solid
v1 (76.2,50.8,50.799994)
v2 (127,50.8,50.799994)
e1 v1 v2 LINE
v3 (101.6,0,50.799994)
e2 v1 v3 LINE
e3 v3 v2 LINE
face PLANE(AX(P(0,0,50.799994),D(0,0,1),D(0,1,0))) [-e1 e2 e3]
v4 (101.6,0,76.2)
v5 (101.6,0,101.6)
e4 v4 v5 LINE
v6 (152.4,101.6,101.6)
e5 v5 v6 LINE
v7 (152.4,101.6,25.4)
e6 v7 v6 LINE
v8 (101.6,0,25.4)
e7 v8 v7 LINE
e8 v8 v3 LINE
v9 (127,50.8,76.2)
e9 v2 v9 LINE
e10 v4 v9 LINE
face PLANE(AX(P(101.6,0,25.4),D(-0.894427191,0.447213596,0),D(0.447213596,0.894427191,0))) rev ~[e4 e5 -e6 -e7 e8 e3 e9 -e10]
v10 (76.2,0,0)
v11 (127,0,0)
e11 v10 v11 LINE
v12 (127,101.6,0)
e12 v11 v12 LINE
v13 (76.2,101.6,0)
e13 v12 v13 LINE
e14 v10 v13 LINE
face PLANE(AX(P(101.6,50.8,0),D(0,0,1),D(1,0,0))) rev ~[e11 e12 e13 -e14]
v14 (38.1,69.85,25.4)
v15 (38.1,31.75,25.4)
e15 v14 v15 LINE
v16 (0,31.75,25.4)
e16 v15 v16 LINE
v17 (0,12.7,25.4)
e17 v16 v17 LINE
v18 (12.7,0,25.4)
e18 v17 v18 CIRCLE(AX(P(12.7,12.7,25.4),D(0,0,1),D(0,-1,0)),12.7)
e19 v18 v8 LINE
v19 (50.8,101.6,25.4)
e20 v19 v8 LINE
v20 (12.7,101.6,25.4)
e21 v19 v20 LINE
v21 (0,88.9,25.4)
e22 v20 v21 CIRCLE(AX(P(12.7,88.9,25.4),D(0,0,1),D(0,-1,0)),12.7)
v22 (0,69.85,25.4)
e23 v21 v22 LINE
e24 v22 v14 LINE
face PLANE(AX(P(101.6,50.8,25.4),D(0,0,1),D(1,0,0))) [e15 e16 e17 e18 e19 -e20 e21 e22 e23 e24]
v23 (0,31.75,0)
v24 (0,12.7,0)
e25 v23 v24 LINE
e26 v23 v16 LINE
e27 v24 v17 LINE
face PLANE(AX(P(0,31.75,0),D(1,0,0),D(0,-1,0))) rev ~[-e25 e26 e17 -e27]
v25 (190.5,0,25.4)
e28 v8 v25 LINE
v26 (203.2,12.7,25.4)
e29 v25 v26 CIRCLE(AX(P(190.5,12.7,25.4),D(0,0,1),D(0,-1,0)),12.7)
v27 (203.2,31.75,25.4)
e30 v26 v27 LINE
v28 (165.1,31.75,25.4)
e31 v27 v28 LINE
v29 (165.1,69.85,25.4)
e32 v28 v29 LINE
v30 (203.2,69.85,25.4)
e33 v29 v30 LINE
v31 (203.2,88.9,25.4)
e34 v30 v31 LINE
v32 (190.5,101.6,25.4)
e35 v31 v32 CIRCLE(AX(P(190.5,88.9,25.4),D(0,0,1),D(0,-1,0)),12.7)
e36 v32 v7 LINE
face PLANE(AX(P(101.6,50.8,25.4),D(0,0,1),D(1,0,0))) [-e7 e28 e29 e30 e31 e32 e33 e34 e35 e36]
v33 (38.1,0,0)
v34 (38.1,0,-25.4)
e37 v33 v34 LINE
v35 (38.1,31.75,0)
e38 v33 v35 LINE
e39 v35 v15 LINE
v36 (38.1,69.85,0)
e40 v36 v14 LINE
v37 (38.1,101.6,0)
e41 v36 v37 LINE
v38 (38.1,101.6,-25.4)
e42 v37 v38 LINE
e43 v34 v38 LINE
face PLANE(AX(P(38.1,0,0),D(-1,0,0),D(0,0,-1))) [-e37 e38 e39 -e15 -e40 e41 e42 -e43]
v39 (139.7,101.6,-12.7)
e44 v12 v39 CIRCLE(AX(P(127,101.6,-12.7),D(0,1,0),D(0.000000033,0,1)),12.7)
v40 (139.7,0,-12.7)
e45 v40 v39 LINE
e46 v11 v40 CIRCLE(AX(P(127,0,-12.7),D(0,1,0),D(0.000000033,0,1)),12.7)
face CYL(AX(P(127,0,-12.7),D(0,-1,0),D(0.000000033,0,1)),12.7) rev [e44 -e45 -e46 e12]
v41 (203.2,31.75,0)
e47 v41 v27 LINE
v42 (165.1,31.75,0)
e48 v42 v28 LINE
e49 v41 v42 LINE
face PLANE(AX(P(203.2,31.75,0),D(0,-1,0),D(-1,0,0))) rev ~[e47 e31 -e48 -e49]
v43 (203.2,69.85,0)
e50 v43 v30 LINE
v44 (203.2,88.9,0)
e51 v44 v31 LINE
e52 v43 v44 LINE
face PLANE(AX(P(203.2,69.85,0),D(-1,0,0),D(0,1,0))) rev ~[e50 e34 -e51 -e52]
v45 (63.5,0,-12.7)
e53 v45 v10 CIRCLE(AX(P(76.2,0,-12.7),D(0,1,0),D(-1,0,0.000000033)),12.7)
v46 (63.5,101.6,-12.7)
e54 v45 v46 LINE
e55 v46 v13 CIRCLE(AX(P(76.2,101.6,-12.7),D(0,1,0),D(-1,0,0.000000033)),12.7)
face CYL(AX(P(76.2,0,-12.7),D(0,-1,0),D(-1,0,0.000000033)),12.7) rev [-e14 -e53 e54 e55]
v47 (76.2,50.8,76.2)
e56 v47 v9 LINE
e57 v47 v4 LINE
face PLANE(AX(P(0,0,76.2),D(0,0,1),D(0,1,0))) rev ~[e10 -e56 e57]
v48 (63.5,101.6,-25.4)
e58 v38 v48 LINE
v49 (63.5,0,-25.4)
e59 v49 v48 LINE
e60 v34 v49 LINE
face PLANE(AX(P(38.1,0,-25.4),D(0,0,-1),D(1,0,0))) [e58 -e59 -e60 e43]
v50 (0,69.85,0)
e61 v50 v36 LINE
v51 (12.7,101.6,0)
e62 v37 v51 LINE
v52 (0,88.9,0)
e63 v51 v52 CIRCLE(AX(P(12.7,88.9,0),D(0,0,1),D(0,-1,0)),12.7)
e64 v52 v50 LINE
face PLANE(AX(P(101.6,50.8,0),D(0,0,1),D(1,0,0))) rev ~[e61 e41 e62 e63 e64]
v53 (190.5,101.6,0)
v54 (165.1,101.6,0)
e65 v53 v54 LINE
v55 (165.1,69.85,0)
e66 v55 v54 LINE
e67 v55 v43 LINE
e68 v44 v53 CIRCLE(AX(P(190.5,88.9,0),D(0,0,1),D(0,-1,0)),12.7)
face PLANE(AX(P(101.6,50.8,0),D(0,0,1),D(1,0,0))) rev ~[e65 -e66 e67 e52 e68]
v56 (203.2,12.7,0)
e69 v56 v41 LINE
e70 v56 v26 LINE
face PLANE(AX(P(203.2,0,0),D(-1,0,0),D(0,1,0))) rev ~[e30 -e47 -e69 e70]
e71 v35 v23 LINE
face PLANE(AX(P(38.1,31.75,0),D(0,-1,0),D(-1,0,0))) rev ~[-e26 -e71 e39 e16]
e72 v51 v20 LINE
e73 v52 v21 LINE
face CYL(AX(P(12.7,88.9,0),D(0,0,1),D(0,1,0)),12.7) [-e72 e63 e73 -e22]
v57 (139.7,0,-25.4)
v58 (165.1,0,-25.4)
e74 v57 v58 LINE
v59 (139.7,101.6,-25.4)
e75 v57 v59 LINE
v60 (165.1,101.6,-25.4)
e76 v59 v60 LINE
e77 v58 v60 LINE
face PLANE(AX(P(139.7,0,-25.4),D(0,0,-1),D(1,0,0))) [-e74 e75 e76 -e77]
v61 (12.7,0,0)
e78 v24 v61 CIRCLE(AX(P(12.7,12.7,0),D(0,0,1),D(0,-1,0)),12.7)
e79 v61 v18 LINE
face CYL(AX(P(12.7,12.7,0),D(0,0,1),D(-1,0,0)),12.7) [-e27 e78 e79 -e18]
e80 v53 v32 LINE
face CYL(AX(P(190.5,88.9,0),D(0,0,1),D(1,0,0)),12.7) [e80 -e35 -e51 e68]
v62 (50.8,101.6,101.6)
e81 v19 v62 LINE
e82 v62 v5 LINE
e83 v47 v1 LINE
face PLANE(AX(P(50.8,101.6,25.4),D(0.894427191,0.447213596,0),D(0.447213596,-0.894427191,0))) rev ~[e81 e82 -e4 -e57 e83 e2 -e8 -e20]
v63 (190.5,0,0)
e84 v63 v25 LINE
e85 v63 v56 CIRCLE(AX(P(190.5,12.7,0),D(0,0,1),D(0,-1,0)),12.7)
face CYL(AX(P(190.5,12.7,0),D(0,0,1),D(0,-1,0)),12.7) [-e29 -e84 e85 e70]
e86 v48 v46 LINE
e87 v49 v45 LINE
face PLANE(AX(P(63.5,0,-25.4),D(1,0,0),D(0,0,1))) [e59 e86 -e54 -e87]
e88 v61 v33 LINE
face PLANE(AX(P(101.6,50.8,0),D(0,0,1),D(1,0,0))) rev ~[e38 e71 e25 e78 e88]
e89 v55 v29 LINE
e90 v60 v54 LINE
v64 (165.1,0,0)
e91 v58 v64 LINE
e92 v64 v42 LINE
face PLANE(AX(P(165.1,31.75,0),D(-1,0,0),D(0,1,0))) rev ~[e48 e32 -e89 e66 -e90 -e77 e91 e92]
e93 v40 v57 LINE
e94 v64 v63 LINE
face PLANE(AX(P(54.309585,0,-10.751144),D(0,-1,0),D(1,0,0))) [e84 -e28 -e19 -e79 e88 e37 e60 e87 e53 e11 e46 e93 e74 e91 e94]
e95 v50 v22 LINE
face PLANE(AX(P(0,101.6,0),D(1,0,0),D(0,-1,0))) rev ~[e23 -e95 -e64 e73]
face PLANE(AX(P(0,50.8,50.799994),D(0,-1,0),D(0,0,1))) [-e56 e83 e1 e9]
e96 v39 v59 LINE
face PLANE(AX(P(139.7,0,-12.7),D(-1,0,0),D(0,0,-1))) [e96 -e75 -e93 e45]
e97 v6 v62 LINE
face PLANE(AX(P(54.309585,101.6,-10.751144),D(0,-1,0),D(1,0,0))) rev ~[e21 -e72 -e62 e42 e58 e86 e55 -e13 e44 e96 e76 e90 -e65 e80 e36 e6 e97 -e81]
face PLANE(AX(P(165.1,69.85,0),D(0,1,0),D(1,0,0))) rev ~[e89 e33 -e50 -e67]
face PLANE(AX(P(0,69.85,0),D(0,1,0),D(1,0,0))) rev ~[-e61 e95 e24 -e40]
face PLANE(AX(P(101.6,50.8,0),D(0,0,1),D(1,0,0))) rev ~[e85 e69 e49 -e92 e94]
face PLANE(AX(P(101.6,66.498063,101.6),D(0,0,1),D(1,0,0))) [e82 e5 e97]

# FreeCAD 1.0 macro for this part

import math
import FreeCAD as App
import Part
import Sketcher
Q = App.Units.Quantity


def edges_at(feature, points):
    """Names of the edges that pass closest to the given points."""
    edges = feature.Shape.Edges
    near = lambda p: min(range(len(edges)), key=lambda i: edges[i].distToShape(Part.Vertex(*p))[0])
    return sorted({f"Edge{near(p) + 1}" for p in points})

doc = App.newDocument("Part")
body = doc.addObject("PartDesign::Body", "Body")

sketch1 = body.newObject("Sketcher::SketchObject", "Sketch")
sketch1.AttachmentSupport = (doc.getObject("XY_Plane"), [""])
sketch1.MapMode = "FlatFace"
sketch1.addGeometry([
    Part.LineSegment(App.Vector(0, 32, 0), App.Vector(0, 0, 0)),
    Part.LineSegment(App.Vector(0, 0, 0), App.Vector(203, 0, 0)),
    Part.LineSegment(App.Vector(203, 0, 0), App.Vector(203, 32, 0)),
    Part.LineSegment(App.Vector(203, 32, 0), App.Vector(165, 32, 0)),
    Part.LineSegment(App.Vector(165, 32, 0), App.Vector(165, 70, 0)),
    Part.LineSegment(App.Vector(165, 70, 0), App.Vector(203, 70, 0)),
    Part.LineSegment(App.Vector(203, 70, 0), App.Vector(203, 102, 0)),
    Part.LineSegment(App.Vector(203, 102, 0), App.Vector(0, 102, 0)),
    Part.LineSegment(App.Vector(0, 102, 0), App.Vector(0, 70, 0)),
    Part.LineSegment(App.Vector(0, 70, 0), App.Vector(38, 70, 0)),
    Part.LineSegment(App.Vector(38, 70, 0), App.Vector(38, 32, 0)),
    Part.LineSegment(App.Vector(38, 32, 0), App.Vector(0, 32, 0)),
], False)
sketch1.addConstraint([
    Sketcher.Constraint("Coincident", 0, 2, 1, 1),
    Sketcher.Constraint("Coincident", 1, 2, 2, 1),
    Sketcher.Constraint("Coincident", 2, 2, 3, 1),
    Sketcher.Constraint("Coincident", 3, 2, 4, 1),
    Sketcher.Constraint("Coincident", 4, 2, 5, 1),
    Sketcher.Constraint("Coincident", 5, 2, 6, 1),
    Sketcher.Constraint("Coincident", 6, 2, 7, 1),
    Sketcher.Constraint("Coincident", 7, 2, 8, 1),
    Sketcher.Constraint("Coincident", 8, 2, 9, 1),
    Sketcher.Constraint("Coincident", 9, 2, 10, 1),
    Sketcher.Constraint("Coincident", 10, 2, 11, 1),
    Sketcher.Constraint("Coincident", 11, 2, 0, 1),
    Sketcher.Constraint("Vertical", 0),
    Sketcher.Constraint("Horizontal", 1),
    Sketcher.Constraint("Vertical", 2),
    Sketcher.Constraint("Horizontal", 3),
    Sketcher.Constraint("Vertical", 4),
    Sketcher.Constraint("Horizontal", 5),
    Sketcher.Constraint("Vertical", 6),
    Sketcher.Constraint("Horizontal", 7),
    Sketcher.Constraint("Vertical", 8),
    Sketcher.Constraint("Horizontal", 9),
    Sketcher.Constraint("Vertical", 10),
    Sketcher.Constraint("Horizontal", 11),
    Sketcher.Constraint("Coincident", 0, 2, -1, 1),
    Sketcher.Constraint("PointOnObject", 7, 2, -2),
    Sketcher.Constraint("Horizontal", 5, 2, 8, 2),
    Sketcher.Constraint("Horizontal", 3, 2, 10, 2),
    Sketcher.Constraint("Vertical", 2, 2, 5, 2),
    Sketcher.Constraint("Equal", 5, 9),
    Sketcher.Constraint("Equal", 11, 4),
    Sketcher.Constraint("Equal", 2, 6),
    Sketcher.Constraint("DistanceX", 1, 1, 1, 2, Q("8 in")),
    Sketcher.Constraint("DistanceX", 3, 2, 3, 1, Q("1.5 in")),
    Sketcher.Constraint("DistanceY", -1, 1, 6, 2, Q("4 in")),
])
pad1 = body.newObject("PartDesign::Pad", "Pad")
pad1.Profile = sketch1
pad1.Length = Q("1 in")
doc.recompute()

fillet = body.newObject("PartDesign::Fillet", "Fillet")
fillet.Base = (pad1, edges_at(pad1, [
    (203.2, 0, 12.7),
    (203.2, 101.6, 12.7),
    (0, 0, 12.7),
    (0, 101.6, 12.7),
]))
fillet.Radius = Q("0.5 in")

sketch2 = body.newObject("Sketcher::SketchObject", "Sketch001")
sketch2.AttachmentSupport = (doc.getObject("XZ_Plane"), [""])
sketch2.MapMode = "FlatFace"
sketch2.addGeometry([
    Part.LineSegment(App.Vector(76, 0, 0), App.Vector(38, 0, 0)),
    Part.LineSegment(App.Vector(38, 0, 0), App.Vector(38, -25, 0)),
    Part.LineSegment(App.Vector(38, -25, 0), App.Vector(64, -25, 0)),
    Part.LineSegment(App.Vector(64, -25, 0), App.Vector(64, -13, 0)),
    Part.ArcOfCircle(Part.Circle(App.Vector(76, -13, 0), App.Vector(0, 0, 1), 13), math.radians(90), math.radians(180)),
    Part.LineSegment(App.Vector(140, -13, 0), App.Vector(140, -25, 0)),
    Part.LineSegment(App.Vector(140, -25, 0), App.Vector(165, -25, 0)),
    Part.LineSegment(App.Vector(165, -25, 0), App.Vector(165, 0, 0)),
    Part.LineSegment(App.Vector(165, 0, 0), App.Vector(127, 0, 0)),
    Part.ArcOfCircle(Part.Circle(App.Vector(127, -13, 0), App.Vector(0, 0, 1), 13), math.radians(0), math.radians(90)),
], False)
sketch2.addConstraint([
    Sketcher.Constraint("Coincident", 0, 2, 1, 1),
    Sketcher.Constraint("Coincident", 1, 2, 2, 1),
    Sketcher.Constraint("Coincident", 2, 2, 3, 1),
    Sketcher.Constraint("Tangent", 3, 2, 4, 2),
    Sketcher.Constraint("Tangent", 4, 1, 0, 1),
    Sketcher.Constraint("Coincident", 5, 2, 6, 1),
    Sketcher.Constraint("Coincident", 6, 2, 7, 1),
    Sketcher.Constraint("Coincident", 7, 2, 8, 1),
    Sketcher.Constraint("Tangent", 8, 2, 9, 2),
    Sketcher.Constraint("Tangent", 9, 1, 5, 1),
    Sketcher.Constraint("Horizontal", 0),
    Sketcher.Constraint("Vertical", 1),
    Sketcher.Constraint("Horizontal", 2),
    Sketcher.Constraint("Vertical", 3),
    Sketcher.Constraint("Vertical", 5),
    Sketcher.Constraint("Horizontal", 6),
    Sketcher.Constraint("Vertical", 7),
    Sketcher.Constraint("Horizontal", 8),
    Sketcher.Constraint("Equal", 4, 9),
    Sketcher.Constraint("PointOnObject", 0, 2, -1),
    Sketcher.Constraint("PointOnObject", 7, 2, -1),
    Sketcher.Constraint("Horizontal", 2, 2, 5, 2),
    Sketcher.Constraint("Equal", 2, 6),
    Sketcher.Constraint("Equal", 6, 1),
    Sketcher.Constraint("Radius", 4, Q("0.5 in")),
    Sketcher.Constraint("DistanceX", 2, 1, 2, 2, Q("1 in")),
    Sketcher.Constraint("DistanceX", -1, 1, 4, 3, Q("3 in")),
    Sketcher.Constraint("DistanceX", -1, 1, 9, 3, Q("5 in")),
])
pad2 = body.newObject("PartDesign::Pad", "Pad001")
pad2.Profile = sketch2
pad2.Length = Q("4 in")
pad2.Reversed = True

sketch3 = body.newObject("Sketcher::SketchObject", "Sketch002")
sketch3.AttachmentSupport = (doc.getObject("XY_Plane"), [""])
sketch3.MapMode = "FlatFace"
sketch3.AttachmentOffset = App.Placement(App.Vector(0, 0, 1 * 25.4), App.Rotation())
sketch3.addGeometry([
    Part.LineSegment(App.Vector(102, 0, 0), App.Vector(152, 102, 0)),
    Part.LineSegment(App.Vector(152, 102, 0), App.Vector(51, 102, 0)),
    Part.LineSegment(App.Vector(51, 102, 0), App.Vector(102, 0, 0)),
], False)
sketch3.addConstraint([
    Sketcher.Constraint("Coincident", 0, 2, 1, 1),
    Sketcher.Constraint("Coincident", 1, 2, 2, 1),
    Sketcher.Constraint("Coincident", 2, 2, 0, 1),
    Sketcher.Constraint("Horizontal", 1),
    Sketcher.Constraint("PointOnObject", 2, 2, -1),
    Sketcher.Constraint("Equal", 0, 2),
    Sketcher.Constraint("DistanceX", 1, 2, 1, 1, Q("4 in")),
    Sketcher.Constraint("DistanceX", -1, 1, 0, 2, Q("6 in")),
    Sketcher.Constraint("DistanceY", -1, 1, 0, 2, Q("4 in")),
])
pad3 = body.newObject("PartDesign::Pad", "Pad002")
pad3.Profile = sketch3
pad3.Length = Q("3 in")

sketch4 = body.newObject("Sketcher::SketchObject", "Sketch003")
sketch4.AttachmentSupport = (doc.getObject("YZ_Plane"), [""])
sketch4.MapMode = "FlatFace"
sketch4.addGeometry([
    Part.LineSegment(App.Vector(0, 76, 0), App.Vector(0, 51, 0)),
    Part.LineSegment(App.Vector(0, 51, 0), App.Vector(51, 51, 0)),
    Part.LineSegment(App.Vector(51, 51, 0), App.Vector(51, 76, 0)),
    Part.LineSegment(App.Vector(51, 76, 0), App.Vector(0, 76, 0)),
], False)
sketch4.addConstraint([
    Sketcher.Constraint("Coincident", 0, 2, 1, 1),
    Sketcher.Constraint("Coincident", 1, 2, 2, 1),
    Sketcher.Constraint("Coincident", 2, 2, 3, 1),
    Sketcher.Constraint("Coincident", 3, 2, 0, 1),
    Sketcher.Constraint("Vertical", 0),
    Sketcher.Constraint("Horizontal", 1),
    Sketcher.Constraint("Vertical", 2),
    Sketcher.Constraint("Horizontal", 3),
    Sketcher.Constraint("PointOnObject", 0, 2, -2),
    Sketcher.Constraint("DistanceX", 1, 1, 1, 2, Q("2 in")),
    Sketcher.Constraint("DistanceY", -1, 1, 2, 2, Q("3 in")),
    Sketcher.Constraint("DistanceY", 0, 2, 0, 1, 25.400006),
])
pocket1 = body.newObject("PartDesign::Pocket", "Pocket")
pocket1.Profile = sketch4
pocket1.Type = "ThroughAll"
pocket1.Reversed = True

doc.recompute()
